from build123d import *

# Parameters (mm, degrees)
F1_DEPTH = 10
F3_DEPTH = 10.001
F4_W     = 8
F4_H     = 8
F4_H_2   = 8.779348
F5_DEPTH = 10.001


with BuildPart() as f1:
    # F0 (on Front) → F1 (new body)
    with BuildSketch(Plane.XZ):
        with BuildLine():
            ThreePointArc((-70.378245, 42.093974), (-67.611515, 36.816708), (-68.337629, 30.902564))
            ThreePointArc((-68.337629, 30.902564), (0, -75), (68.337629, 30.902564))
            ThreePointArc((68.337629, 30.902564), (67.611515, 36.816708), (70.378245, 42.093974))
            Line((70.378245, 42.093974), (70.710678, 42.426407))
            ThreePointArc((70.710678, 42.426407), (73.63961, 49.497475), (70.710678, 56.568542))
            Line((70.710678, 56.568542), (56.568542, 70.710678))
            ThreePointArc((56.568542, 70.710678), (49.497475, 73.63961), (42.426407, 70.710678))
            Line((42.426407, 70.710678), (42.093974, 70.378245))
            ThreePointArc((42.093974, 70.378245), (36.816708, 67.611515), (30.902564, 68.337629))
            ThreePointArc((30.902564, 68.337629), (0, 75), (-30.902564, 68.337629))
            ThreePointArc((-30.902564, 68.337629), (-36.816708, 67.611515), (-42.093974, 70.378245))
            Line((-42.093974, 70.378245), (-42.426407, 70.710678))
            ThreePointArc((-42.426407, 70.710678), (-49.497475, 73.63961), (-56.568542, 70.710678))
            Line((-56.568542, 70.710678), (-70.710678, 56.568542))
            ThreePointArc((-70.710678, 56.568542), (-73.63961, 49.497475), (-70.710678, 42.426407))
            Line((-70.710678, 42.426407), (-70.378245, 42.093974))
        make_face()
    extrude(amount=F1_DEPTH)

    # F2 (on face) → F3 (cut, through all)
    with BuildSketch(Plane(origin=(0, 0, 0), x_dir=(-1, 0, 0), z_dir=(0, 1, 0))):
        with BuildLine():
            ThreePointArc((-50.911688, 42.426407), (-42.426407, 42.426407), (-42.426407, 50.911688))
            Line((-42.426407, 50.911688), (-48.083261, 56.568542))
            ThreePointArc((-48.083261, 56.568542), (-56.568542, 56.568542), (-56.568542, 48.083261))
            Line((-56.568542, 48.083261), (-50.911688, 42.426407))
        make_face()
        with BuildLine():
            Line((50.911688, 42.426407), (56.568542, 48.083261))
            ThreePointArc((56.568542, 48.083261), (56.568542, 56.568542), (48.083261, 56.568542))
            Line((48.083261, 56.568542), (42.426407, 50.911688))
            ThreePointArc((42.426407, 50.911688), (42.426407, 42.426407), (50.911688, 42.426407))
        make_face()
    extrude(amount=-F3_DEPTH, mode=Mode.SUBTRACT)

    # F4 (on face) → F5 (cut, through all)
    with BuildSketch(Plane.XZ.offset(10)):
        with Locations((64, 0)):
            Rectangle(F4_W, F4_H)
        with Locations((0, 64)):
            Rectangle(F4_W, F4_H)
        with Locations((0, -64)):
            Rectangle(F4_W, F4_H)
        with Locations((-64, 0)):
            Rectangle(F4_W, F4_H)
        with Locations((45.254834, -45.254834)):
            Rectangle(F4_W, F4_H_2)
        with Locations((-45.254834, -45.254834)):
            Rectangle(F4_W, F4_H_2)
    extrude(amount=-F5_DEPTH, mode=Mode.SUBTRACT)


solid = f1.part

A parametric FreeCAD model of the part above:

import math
import FreeCAD as App
import Part
import Sketcher
from FreeCAD import Vector
Q = App.Units.Quantity


def add_polygon(sketch, points):
    """Adds a closed chain of lines whose ends are joined by coincident constraints."""
    first, n = sketch.GeometryCount, len(points)
    for a, b in zip(points, points[1:] + points[:1]):
        sketch.addGeometry(Part.LineSegment(App.Vector(*a, 0), App.Vector(*b, 0)), False)
    for i in range(n):
        sketch.addConstraint(Sketcher.Constraint("Coincident", first + i, 2, first + (i + 1) % n, 1))

doc = App.newDocument("Part")
params = doc.addObject("Spreadsheet::Sheet", "Params")
for row, (alias, value) in enumerate([
    ("sketch1_radius", "75 mm"),
    ("sketch1_radius2", "10 mm"),
    ("sketch1_length", "20.000001 mm"),
    ("pad1_length", "10 mm"),
    ("sketch2_radius", "6 mm"),
    ("sketch2_length", "8 mm"),
    ("sketch3_width", "8 mm"),
], start=1):
    params.set(f"A{row}", alias)
    params.set(f"B{row}", "=" + value)
    params.setAlias(f"B{row}", alias)

body = doc.addObject("PartDesign::Body", "Body")

# Sketch on XZ plane
sketch1 = body.newObject("Sketcher::SketchObject", "Sketch")
sketch1.AttachmentSupport = (doc.getObject("XZ_Plane"), [""])
sketch1.MapMode = "FlatFace"
sketch1.addGeometry([
    Part.ArcOfCircle(Part.Circle(Vector(-77.449316, 35.022906, 0), Vector(0, 0, 1), 10.000002), math.radians(-24.332676), math.radians(44.999991)),  # 0
    Part.ArcOfCircle(Part.Circle(Vector(0, 0, 0), Vector(0, 0, 1), 75), math.radians(155.667317), math.radians(384.332683)),  # 1
    Part.ArcOfCircle(Part.Circle(Vector(77.449316, 35.022906, 0), Vector(0, 0, 1), 10.000002), math.radians(135.000009), math.radians(204.332676)),  # 2
    Part.LineSegment(Vector(70.378245, 42.093974, 0), Vector(70.710678, 42.426407, 0)),  # 3
    Part.ArcOfCircle(Part.Circle(Vector(63.63961, 49.497475, 0), Vector(0, 0, 1), 10), math.radians(-44.999999), math.radians(44.999999)),  # 4
    Part.LineSegment(Vector(70.710678, 56.568542, 0), Vector(56.568542, 70.710678, 0)),  # 5
    Part.ArcOfCircle(Part.Circle(Vector(49.497475, 63.63961, 0), Vector(0, 0, 1), 10), math.radians(45.000001), math.radians(134.999999)),  # 6
    Part.LineSegment(Vector(42.426407, 70.710678, 0), Vector(42.093974, 70.378245, 0)),  # 7
    Part.ArcOfCircle(Part.Circle(Vector(35.022906, 77.449316, 0), Vector(0, 0, 1), 10.000002), math.radians(-114.332676), math.radians(-45.000009)),  # 8
    Part.ArcOfCircle(Part.Circle(Vector(0, 0, 0), Vector(0, 0, 1), 75), math.radians(65.667317), math.radians(114.332683)),  # 9
    Part.ArcOfCircle(Part.Circle(Vector(-35.022906, 77.449316, 0), Vector(0, 0, 1), 10.000002), math.radians(-134.999991), math.radians(-65.667324)),  # 10
    Part.LineSegment(Vector(-42.093974, 70.378245, 0), Vector(-42.426407, 70.710678, 0)),  # 11
    Part.ArcOfCircle(Part.Circle(Vector(-49.497475, 63.63961, 0), Vector(0, 0, 1), 10), math.radians(45.000001), math.radians(134.999999)),  # 12
    Part.LineSegment(Vector(-56.568542, 70.710678, 0), Vector(-70.710678, 56.568542, 0)),  # 13
    Part.ArcOfCircle(Part.Circle(Vector(-63.63961, 49.497475, 0), Vector(0, 0, 1), 10), math.radians(135.000001), math.radians(224.999999)),  # 14
    Part.LineSegment(Vector(-70.710678, 42.426407, 0), Vector(-70.378245, 42.093974, 0)),  # 15
], False)
sketch1.addConstraint([
    Sketcher.Constraint("Tangent", 0, 1, 1, 1),
    Sketcher.Constraint("Tangent", 1, 2, 2, 2),
    Sketcher.Constraint("Tangent", 2, 1, 3, 1),
    Sketcher.Constraint("Tangent", 3, 2, 4, 1),
    Sketcher.Constraint("Tangent", 4, 2, 5, 1),
    Sketcher.Constraint("Tangent", 5, 2, 6, 1),
    Sketcher.Constraint("Tangent", 6, 2, 7, 1),
    Sketcher.Constraint("Tangent", 7, 2, 8, 2),
    Sketcher.Constraint("Tangent", 8, 1, 9, 1),
    Sketcher.Constraint("Tangent", 9, 2, 10, 2),
    Sketcher.Constraint("Tangent", 10, 1, 11, 1),
    Sketcher.Constraint("Tangent", 11, 2, 12, 1),
    Sketcher.Constraint("Tangent", 12, 2, 13, 1),
    Sketcher.Constraint("Tangent", 13, 2, 14, 1),
    Sketcher.Constraint("Tangent", 14, 2, 15, 1),
    Sketcher.Constraint("Tangent", 15, 2, 0, 2),
    Sketcher.Constraint("Coincident", 1, 3, -1, 1),
    Sketcher.Constraint("Coincident", 9, 3, -1, 1),
    Sketcher.Constraint("Equal", 0, 2),
    Sketcher.Constraint("Equal", 4, 6),
    Sketcher.Constraint("Equal", 2, 8),
    Sketcher.Constraint("Equal", 1, 9),
    Sketcher.Constraint("Equal", 8, 10),
    Sketcher.Constraint("Equal", 6, 12),
    Sketcher.Constraint("Equal", 12, 14),
    Sketcher.Constraint("Symmetric", 6, 3, 12, 3, -2),
    Sketcher.Constraint("Symmetric", 4, 3, 14, 3, -2),
    Sketcher.Constraint("Perpendicular", 3, 5),
    Sketcher.Constraint("Perpendicular", 5, 7),
    Sketcher.Constraint("Perpendicular", 7, 11),
    Sketcher.Constraint("Perpendicular", 11, 13),
    Sketcher.Constraint("Perpendicular", 13, 15),
    Sketcher.Constraint("Equal", 3, 7),
    Sketcher.Constraint("Radius", 1, Q("75 mm")),
    Sketcher.Constraint("Radius", 4, Q("10 mm")),
    Sketcher.Constraint("Distance", 5, Q("20.000001 mm")),
    Sketcher.Constraint("Radius", 0, Q("10.000002 mm")),
    Sketcher.Constraint("DistanceY", 2, 1, 4, 3, Q("7.403501 mm")),
])
sketch1.setExpression("Constraints[33]", "Params.sketch1_radius")
sketch1.setExpression("Constraints[34]", "Params.sketch1_radius2")
sketch1.setExpression("Constraints[35]", "Params.sketch1_length")
pad1 = body.newObject("PartDesign::Pad", "Pad")
pad1.Profile = sketch1
pad1.setExpression("Length", "Params.pad1_length")

# Sketch on XZ plane
sketch2 = body.newObject("Sketcher::SketchObject", "Sketch001")
sketch2.AttachmentSupport = (doc.getObject("XZ_Plane"), [""])
sketch2.MapMode = "FlatFace"
sketch2.addGeometry([
    Part.ArcOfCircle(Part.Circle(Vector(46.669047, 46.669047, 0), Vector(0, 0, 1), 6), math.radians(135), math.radians(315)),  # 0
    Part.LineSegment(Vector(42.426407, 50.911688, 0), Vector(48.083261, 56.568542, 0)),  # 1
    Part.ArcOfCircle(Part.Circle(Vector(52.325902, 52.325902, 0), Vector(0, 0, 1), 6), math.radians(-45), math.radians(135)),  # 2
    Part.LineSegment(Vector(56.568542, 48.083261, 0), Vector(50.911688, 42.426407, 0)),  # 3
    Part.LineSegment(Vector(-50.911688, 42.426407, 0), Vector(-56.568542, 48.083261, 0)),  # 4
    Part.ArcOfCircle(Part.Circle(Vector(-52.325902, 52.325902, 0), Vector(0, 0, 1), 6), math.radians(45), math.radians(225)),  # 5
    Part.LineSegment(Vector(-48.083261, 56.568542, 0), Vector(-42.426407, 50.911688, 0)),  # 6
    Part.ArcOfCircle(Part.Circle(Vector(-46.669047, 46.669047, 0), Vector(0, 0, 1), 6), math.radians(-135), math.radians(45)),  # 7
], False)
sketch2.addConstraint([
    Sketcher.Constraint("Tangent", 0, 1, 1, 1),
    Sketcher.Constraint("Tangent", 1, 2, 2, 2),
    Sketcher.Constraint("Tangent", 2, 1, 3, 1),
    Sketcher.Constraint("Tangent", 3, 2, 0, 2),
    Sketcher.Constraint("Tangent", 4, 2, 5, 2),
    Sketcher.Constraint("Tangent", 5, 1, 6, 1),
    Sketcher.Constraint("Tangent", 6, 2, 7, 2),
    Sketcher.Constraint("Tangent", 7, 1, 4, 1),
    Sketcher.Constraint("Equal", 0, 2),
    Sketcher.Constraint("Equal", 2, 5),
    Sketcher.Constraint("Equal", 5, 7),
    Sketcher.Constraint("Symmetric", 2, 3, 5, 3, -2),
    Sketcher.Constraint("Symmetric", 0, 3, 7, 3, -2),
    Sketcher.Constraint("Perpendicular", 3, 4),
    Sketcher.Constraint("Radius", 0, Q("6 mm")),
    Sketcher.Constraint("Distance", 1, Q("8 mm")),
    Sketcher.Constraint("DistanceX", -1, 1, 2, 3, Q("52.325902 mm")),
    Sketcher.Constraint("DistanceY", -1, 1, 2, 3, Q("52.325902 mm")),
])
sketch2.setExpression("Constraints[14]", "Params.sketch2_radius")
sketch2.setExpression("Constraints[15]", "Params.sketch2_length")
pocket1 = body.newObject("PartDesign::Pocket", "Pocket")
pocket1.Profile = sketch2
pocket1.Type = "ThroughAll"
pocket1.Reversed = True

# Sketch on XZ plane
sketch3 = body.newObject("Sketcher::SketchObject", "Sketch002")
sketch3.AttachmentSupport = (doc.getObject("XZ_Plane"), [""])
sketch3.MapMode = "FlatFace"
sketch3.AttachmentOffset = App.Placement(Vector(0, 0, 10), App.Rotation())
add_polygon(sketch3, [(60, 4), (60, -4), (68, -4), (68, 4)])  # lines 0-3
add_polygon(sketch3, [(-4, 68), (-4, 60), (4, 60), (4, 68)])  # lines 4-7
add_polygon(sketch3, [(-4, -60), (-4, -68), (4, -68), (4, -60)])  # lines 8-11
add_polygon(sketch3, [(-68, 4), (-68, -4), (-60, -4), (-60, 4)])  # lines 12-15
add_polygon(sketch3, [(41.254834, -40.86516), (41.254834, -49.644508), (49.254834, -49.644508), (49.254834, -40.86516)])  # lines 16-19
add_polygon(sketch3, [(-49.254834, -40.86516), (-49.254834, -49.644508), (-41.254834, -49.644508), (-41.254834, -40.86516)])  # lines 20-23
sketch3.addConstraint([
    Sketcher.Constraint("Vertical", 0),
    Sketcher.Constraint("Horizontal", 1),
    Sketcher.Constraint("Vertical", 2),
    Sketcher.Constraint("Horizontal", 3),
    Sketcher.Constraint("Vertical", 4),
    Sketcher.Constraint("Horizontal", 5),
    Sketcher.Constraint("Vertical", 6),
    Sketcher.Constraint("Horizontal", 7),
    Sketcher.Constraint("Vertical", 8),
    Sketcher.Constraint("Horizontal", 9),
    Sketcher.Constraint("Vertical", 10),
    Sketcher.Constraint("Horizontal", 11),
    Sketcher.Constraint("Vertical", 12),
    Sketcher.Constraint("Horizontal", 13),
    Sketcher.Constraint("Vertical", 14),
    Sketcher.Constraint("Horizontal", 15),
    Sketcher.Constraint("Vertical", 16),
    Sketcher.Constraint("Horizontal", 17),
    Sketcher.Constraint("Vertical", 18),
    Sketcher.Constraint("Horizontal", 19),
    Sketcher.Constraint("Vertical", 20),
    Sketcher.Constraint("Horizontal", 21),
    Sketcher.Constraint("Vertical", 22),
    Sketcher.Constraint("Horizontal", 23),
    Sketcher.Constraint("Symmetric", 6, 2, 8, 2, -1, 1),
    Sketcher.Constraint("Symmetric", 4, 2, 10, 2, -1, 1),
    Sketcher.Constraint("Symmetric", 2, 2, 12, 2, -1, 1),
    Sketcher.Constraint("Symmetric", 0, 2, 14, 2, -1, 1),
    Sketcher.Constraint("Symmetric", 17, 2, 20, 2, -2),
    Sketcher.Constraint("Symmetric", 19, 2, 22, 2, -2),
    Sketcher.Constraint("Horizontal", 1, 2, 12, 2),
    Sketcher.Constraint("Vertical", 7, 2, 8, 2),
    Sketcher.Constraint("Equal", 3, 5),
    Sketcher.Constraint("Equal", 15, 17),
    Sketcher.Constraint("Equal", 23, 0),
    Sketcher.Constraint("Equal", 2, 4),
    Sketcher.Constraint("DistanceX", 1, 1, 1, 2, Q("8 mm")),
    Sketcher.Constraint("DistanceX", -1, 1, 0, 2, Q("60 mm")),
    Sketcher.Constraint("DistanceY", -1, 1, 4, 2, Q("60 mm")),
    Sketcher.Constraint("DistanceY", 16, 2, 16, 1, Q("8.779348 mm")),
    Sketcher.Constraint("DistanceY", 16, 2, -1, 1, Q("49.644508 mm")),
    Sketcher.Constraint("DistanceX", -1, 1, 16, 2, Q("41.254834 mm")),
])
sketch3.setExpression("Constraints[60]", "Params.sketch3_width")
pocket2 = body.newObject("PartDesign::Pocket", "Pocket001")
pocket2.Profile = sketch3
pocket2.Type = "ThroughAll"

doc.recompute()
